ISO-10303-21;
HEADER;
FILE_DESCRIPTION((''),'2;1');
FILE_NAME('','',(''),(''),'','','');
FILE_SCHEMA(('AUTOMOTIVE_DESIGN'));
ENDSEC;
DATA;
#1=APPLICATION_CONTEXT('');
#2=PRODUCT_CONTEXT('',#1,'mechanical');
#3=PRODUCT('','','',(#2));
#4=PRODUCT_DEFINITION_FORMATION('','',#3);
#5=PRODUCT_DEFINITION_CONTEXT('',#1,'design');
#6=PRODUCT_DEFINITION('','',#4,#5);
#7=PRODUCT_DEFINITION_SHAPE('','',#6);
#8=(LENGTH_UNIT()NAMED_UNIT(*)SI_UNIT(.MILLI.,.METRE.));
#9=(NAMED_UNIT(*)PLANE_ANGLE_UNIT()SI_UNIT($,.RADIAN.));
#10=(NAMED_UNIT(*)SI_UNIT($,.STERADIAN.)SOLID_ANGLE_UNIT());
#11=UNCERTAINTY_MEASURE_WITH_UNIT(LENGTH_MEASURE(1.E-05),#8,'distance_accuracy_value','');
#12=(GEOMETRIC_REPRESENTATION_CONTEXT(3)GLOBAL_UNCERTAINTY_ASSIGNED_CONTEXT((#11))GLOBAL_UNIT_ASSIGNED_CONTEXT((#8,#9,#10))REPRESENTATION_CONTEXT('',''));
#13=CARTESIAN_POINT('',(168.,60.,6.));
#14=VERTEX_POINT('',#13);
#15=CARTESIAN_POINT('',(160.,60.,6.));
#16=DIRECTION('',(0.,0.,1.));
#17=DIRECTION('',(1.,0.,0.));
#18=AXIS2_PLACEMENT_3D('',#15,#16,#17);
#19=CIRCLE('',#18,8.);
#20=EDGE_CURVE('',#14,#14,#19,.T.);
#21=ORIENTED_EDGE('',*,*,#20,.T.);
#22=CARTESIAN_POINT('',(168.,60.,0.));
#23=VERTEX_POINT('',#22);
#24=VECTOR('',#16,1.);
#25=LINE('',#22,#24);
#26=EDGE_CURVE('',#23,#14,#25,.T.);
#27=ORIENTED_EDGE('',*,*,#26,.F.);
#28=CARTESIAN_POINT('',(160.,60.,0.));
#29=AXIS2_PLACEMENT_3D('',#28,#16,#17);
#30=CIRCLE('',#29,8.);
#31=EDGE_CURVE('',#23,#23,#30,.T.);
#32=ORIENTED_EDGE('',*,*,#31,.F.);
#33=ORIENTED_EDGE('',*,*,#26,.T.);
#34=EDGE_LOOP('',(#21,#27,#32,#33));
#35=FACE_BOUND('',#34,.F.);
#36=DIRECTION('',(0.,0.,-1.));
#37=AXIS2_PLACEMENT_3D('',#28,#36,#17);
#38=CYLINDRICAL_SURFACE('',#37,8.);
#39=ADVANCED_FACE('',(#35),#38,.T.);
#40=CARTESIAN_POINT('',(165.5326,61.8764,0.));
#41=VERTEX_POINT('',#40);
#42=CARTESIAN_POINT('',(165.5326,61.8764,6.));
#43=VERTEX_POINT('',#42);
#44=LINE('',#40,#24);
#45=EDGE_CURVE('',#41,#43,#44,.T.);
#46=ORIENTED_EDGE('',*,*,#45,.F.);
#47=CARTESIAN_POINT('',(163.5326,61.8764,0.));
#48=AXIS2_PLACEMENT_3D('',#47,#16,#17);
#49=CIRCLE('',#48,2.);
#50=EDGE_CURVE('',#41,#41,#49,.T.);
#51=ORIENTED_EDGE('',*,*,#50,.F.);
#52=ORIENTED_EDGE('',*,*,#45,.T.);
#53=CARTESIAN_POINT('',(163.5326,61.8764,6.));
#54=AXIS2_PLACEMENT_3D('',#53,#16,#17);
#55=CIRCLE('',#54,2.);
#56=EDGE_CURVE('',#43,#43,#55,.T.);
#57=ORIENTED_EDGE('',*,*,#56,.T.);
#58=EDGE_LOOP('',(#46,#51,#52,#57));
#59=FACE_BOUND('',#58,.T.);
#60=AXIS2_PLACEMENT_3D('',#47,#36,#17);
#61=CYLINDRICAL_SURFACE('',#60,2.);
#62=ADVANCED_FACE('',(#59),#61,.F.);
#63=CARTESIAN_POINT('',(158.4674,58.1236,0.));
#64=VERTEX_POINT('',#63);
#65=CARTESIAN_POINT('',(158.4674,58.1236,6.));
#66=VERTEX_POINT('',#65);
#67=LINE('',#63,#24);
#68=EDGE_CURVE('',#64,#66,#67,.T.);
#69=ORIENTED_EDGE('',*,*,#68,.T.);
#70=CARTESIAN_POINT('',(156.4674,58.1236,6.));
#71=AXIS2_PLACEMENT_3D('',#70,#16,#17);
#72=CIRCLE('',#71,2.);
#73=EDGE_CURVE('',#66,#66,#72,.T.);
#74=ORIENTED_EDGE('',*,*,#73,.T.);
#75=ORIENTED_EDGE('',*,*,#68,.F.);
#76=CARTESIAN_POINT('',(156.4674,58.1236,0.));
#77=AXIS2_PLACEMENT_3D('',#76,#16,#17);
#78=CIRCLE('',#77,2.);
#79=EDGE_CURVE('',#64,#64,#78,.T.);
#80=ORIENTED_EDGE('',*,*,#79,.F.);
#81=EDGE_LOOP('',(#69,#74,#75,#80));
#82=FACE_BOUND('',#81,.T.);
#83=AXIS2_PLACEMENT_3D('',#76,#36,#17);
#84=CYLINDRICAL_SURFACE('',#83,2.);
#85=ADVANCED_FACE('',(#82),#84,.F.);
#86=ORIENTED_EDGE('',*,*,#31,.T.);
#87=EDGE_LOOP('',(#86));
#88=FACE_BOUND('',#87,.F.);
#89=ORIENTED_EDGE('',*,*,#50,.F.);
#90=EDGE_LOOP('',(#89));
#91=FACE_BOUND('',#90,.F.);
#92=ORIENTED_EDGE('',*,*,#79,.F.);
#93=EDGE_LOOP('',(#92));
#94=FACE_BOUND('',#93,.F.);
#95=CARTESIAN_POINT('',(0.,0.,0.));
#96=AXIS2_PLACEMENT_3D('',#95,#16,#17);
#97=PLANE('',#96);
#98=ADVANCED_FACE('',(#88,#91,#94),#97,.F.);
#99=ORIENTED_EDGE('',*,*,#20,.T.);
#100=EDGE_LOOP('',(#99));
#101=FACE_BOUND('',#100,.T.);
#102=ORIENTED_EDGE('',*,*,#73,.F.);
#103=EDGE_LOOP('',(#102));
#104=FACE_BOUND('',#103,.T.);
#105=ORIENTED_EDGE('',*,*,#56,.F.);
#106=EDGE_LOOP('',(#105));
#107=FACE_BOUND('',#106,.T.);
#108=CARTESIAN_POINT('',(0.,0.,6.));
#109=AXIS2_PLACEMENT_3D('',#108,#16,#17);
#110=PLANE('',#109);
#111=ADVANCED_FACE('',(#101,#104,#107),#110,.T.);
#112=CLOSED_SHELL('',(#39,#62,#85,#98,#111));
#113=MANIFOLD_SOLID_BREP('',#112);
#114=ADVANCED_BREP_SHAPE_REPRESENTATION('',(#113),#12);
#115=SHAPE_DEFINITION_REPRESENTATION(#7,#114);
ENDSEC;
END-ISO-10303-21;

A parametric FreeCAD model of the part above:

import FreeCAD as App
import Part
import Sketcher
Q = App.Units.Quantity

doc = App.newDocument("Part")
params = doc.addObject("Spreadsheet::Sheet", "Params")
for row, (alias, value) in enumerate([
    ("sketch1_diameter", "16 mm"),
    ("sketch1_diameter2", "4 mm"),
    ("pad1_length", "6 mm"),
], start=1):
    params.set(f"A{row}", alias)
    params.set(f"B{row}", "=" + value)
    params.setAlias(f"B{row}", alias)

body = doc.addObject("PartDesign::Body", "Body")

# Sketch on XY plane
sketch1 = doc.addObject("Sketcher::SketchObject", "Sketch")
body.addObject(sketch1)
sketch1.AttachmentSupport = (doc.XY_Plane, [""])
sketch1.MapMode = "FlatFace"
sketch1.addGeometry(Part.Circle(App.Vector(160, 60, 0), App.Vector(0, 0, 1), 8), False)
sketch1.addGeometry(Part.Circle(App.Vector(156.5, 58.1, 0), App.Vector(0, 0, 1), 2), False)
sketch1.addGeometry(Part.Circle(App.Vector(163.5, 61.9, 0), App.Vector(0, 0, 1), 2), False)
sketch1.addConstraint(Sketcher.Constraint("Equal", 1, 2))
sketch1.addConstraint(Sketcher.Constraint("Diameter", 0, Q("16 mm")))
sketch1.addConstraint(Sketcher.Constraint("Diameter", 1, Q("4 mm")))
sketch1.addConstraint(Sketcher.Constraint("DistanceX", -1, 1, 0, 3, Q("160 mm")))
sketch1.addConstraint(Sketcher.Constraint("DistanceY", -1, 1, 0, 3, Q("60 mm")))
sketch1.addConstraint(Sketcher.Constraint("DistanceX", -1, 1, 1, 3, Q("156.4674 mm")))
sketch1.addConstraint(Sketcher.Constraint("DistanceY", -1, 1, 1, 3, Q("58.1236 mm")))
sketch1.addConstraint(Sketcher.Constraint("DistanceX", -1, 1, 2, 3, Q("163.5326 mm")))
sketch1.addConstraint(Sketcher.Constraint("DistanceY", -1, 1, 2, 3, Q("61.8764 mm")))
sketch1.setExpression("Constraints[1]", "Params.sketch1_diameter")
sketch1.setExpression("Constraints[2]", "Params.sketch1_diameter2")
pad1 = doc.addObject("PartDesign::Pad", "Pad")
body.addObject(pad1)
pad1.Profile = sketch1
pad1.setExpression("Length", "Params.pad1_length")

doc.recompute()
